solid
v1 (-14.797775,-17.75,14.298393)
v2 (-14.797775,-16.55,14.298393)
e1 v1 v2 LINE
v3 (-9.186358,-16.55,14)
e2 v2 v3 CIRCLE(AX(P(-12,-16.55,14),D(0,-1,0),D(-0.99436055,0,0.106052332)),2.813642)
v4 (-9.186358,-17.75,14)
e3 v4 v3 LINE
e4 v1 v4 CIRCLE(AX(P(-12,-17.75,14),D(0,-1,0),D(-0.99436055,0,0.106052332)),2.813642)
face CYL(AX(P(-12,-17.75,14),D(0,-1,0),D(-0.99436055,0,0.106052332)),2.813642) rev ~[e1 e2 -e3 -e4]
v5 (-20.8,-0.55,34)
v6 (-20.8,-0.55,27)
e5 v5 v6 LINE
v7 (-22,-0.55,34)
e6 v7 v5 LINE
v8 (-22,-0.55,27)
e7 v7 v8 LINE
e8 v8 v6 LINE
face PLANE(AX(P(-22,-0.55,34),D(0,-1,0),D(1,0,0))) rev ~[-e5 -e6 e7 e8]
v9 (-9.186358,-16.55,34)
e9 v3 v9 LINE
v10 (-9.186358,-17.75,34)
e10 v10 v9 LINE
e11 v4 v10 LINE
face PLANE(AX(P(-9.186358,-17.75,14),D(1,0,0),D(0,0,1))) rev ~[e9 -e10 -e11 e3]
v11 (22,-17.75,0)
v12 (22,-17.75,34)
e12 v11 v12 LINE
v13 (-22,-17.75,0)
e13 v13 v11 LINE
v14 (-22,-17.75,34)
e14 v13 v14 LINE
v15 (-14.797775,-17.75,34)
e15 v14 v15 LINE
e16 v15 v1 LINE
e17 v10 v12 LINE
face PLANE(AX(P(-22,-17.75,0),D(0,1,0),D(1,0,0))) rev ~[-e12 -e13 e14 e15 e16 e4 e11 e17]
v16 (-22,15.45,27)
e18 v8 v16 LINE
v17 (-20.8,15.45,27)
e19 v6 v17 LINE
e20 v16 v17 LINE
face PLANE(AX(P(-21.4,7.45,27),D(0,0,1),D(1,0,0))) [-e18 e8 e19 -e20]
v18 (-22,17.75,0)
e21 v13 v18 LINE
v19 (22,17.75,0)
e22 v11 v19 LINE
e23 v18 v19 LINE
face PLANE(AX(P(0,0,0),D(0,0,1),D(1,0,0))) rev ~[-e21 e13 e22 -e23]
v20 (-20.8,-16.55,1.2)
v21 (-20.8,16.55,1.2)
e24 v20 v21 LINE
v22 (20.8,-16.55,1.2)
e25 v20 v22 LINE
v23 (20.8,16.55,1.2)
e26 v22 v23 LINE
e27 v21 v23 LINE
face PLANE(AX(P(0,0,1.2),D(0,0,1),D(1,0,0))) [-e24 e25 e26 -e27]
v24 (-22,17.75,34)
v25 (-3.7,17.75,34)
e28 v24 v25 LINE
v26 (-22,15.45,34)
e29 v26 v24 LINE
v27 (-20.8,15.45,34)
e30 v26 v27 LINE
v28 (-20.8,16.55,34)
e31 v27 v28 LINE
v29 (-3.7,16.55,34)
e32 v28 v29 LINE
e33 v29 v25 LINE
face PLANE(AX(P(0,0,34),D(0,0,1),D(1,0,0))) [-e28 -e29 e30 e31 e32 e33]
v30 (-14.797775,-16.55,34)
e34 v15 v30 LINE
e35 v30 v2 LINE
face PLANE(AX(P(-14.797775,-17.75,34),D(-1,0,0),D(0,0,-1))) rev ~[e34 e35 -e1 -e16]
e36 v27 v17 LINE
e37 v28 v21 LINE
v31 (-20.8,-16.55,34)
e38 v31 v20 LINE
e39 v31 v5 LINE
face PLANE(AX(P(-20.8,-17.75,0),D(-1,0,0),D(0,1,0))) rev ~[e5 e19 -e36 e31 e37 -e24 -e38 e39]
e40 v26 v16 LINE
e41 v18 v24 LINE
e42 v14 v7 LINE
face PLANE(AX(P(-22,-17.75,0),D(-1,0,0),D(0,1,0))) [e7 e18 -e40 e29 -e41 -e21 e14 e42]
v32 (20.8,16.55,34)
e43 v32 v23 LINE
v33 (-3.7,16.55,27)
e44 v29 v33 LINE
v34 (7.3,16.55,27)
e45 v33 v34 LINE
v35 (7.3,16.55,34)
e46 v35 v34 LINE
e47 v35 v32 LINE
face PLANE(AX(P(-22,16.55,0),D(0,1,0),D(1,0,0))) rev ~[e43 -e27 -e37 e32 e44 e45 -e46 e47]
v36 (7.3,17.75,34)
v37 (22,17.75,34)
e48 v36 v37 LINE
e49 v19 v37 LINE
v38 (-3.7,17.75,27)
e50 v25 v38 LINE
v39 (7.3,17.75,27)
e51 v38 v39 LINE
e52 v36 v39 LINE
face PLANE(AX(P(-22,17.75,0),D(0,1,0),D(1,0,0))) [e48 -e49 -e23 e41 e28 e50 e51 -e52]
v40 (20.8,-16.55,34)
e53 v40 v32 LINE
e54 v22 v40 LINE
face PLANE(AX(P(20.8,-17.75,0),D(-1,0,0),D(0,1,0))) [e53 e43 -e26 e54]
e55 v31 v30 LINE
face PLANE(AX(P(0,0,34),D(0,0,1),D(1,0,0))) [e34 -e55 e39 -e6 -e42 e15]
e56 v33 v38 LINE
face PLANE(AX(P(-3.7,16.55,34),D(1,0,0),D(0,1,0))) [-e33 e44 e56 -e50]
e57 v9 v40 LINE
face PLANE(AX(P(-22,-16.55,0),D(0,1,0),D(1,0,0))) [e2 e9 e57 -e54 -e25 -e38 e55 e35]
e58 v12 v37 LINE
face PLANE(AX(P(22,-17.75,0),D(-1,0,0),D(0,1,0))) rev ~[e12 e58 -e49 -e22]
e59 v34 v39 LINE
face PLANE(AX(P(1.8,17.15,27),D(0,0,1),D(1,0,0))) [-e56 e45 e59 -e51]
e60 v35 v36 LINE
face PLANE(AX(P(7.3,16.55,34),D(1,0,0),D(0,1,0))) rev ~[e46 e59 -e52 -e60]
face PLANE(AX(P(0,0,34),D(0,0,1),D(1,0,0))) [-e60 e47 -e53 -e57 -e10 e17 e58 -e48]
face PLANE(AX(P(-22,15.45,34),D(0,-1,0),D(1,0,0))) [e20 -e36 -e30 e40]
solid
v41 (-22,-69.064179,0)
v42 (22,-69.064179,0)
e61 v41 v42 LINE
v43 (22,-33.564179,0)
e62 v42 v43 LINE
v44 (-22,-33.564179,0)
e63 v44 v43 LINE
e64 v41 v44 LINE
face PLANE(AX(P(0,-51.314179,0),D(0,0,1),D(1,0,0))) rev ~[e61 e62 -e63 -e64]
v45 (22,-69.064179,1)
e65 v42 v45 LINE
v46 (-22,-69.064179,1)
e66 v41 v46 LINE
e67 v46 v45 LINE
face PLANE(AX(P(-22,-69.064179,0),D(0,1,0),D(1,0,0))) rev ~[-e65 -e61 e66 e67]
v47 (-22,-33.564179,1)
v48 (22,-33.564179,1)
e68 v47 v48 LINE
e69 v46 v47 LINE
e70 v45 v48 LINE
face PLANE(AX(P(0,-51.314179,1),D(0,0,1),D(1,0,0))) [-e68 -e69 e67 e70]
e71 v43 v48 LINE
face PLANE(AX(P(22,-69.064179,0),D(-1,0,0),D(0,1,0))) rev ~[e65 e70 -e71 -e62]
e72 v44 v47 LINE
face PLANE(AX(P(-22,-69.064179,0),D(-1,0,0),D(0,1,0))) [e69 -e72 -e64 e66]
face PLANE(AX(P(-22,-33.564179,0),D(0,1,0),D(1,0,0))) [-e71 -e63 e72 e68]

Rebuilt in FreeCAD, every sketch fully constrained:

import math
import FreeCAD as App
import Part
import Sketcher
from FreeCAD import Vector


def faces_at(feature, points):
    """Names of the faces that lie closest to the given points."""
    faces = feature.Shape.Faces
    near = lambda p: min(range(len(faces)), key=lambda i: faces[i].distToShape(Part.Vertex(*p))[0])
    return sorted({f"Face{near(p) + 1}" for p in points})

doc = App.newDocument("Part")
body = doc.addObject("PartDesign::Body", "Body")

# Sketch on XY plane
sketch1 = body.newObject("Sketcher::SketchObject", "Sketch")
sketch1.AttachmentSupport = (doc.getObject("XY_Plane"), [""])
sketch1.MapMode = "FlatFace"
sketch1.addGeometry([
    Part.LineSegment(Vector(-22, 18, 0), Vector(-22, -18, 0)),
    Part.LineSegment(Vector(-22, -18, 0), Vector(22, -18, 0)),
    Part.LineSegment(Vector(22, -18, 0), Vector(22, 18, 0)),
    Part.LineSegment(Vector(22, 18, 0), Vector(-22, 18, 0)),
], False)
sketch1.addConstraint([
    Sketcher.Constraint("Coincident", 0, 2, 1, 1),
    Sketcher.Constraint("Coincident", 1, 2, 2, 1),
    Sketcher.Constraint("Coincident", 2, 2, 3, 1),
    Sketcher.Constraint("Coincident", 3, 2, 0, 1),
    Sketcher.Constraint("Vertical", 0),
    Sketcher.Constraint("Horizontal", 1),
    Sketcher.Constraint("Vertical", 2),
    Sketcher.Constraint("Horizontal", 3),
    Sketcher.Constraint("Symmetric", 0, 2, 2, 2, -1, 1),
    Sketcher.Constraint("DistanceX", 1, 1, 1, 2, 44.0),
    Sketcher.Constraint("DistanceY", 0, 2, 0, 1, 35.5),
])
pad1 = body.newObject("PartDesign::Pad", "Pad")
pad1.Profile = sketch1
pad1.Length = 34
doc.recompute()

thickness = body.newObject("PartDesign::Thickness", "Thickness")
thickness.Base = (pad1, faces_at(pad1, [(0, 0, 34)]))
thickness.Value = 1.2
thickness.Reversed = True
thickness.Join = "Arc"

# Sketch on XZ plane
sketch2 = body.newObject("Sketcher::SketchObject", "Sketch001")
sketch2.AttachmentSupport = (doc.getObject("XZ_Plane"), [""])
sketch2.MapMode = "FlatFace"
sketch2.AttachmentOffset = App.Placement(Vector(0, 0, 17.75), App.Rotation())
sketch2.addGeometry([
    Part.ArcOfCircle(Part.Circle(Vector(-12, 14, 0), Vector(0, 0, 1), 2.8), math.radians(174), math.radians(360)),
    Part.LineSegment(Vector(-9.2, 14, 0), Vector(-9.2, 34, 0)),
    Part.LineSegment(Vector(-9.2, 34, 0), Vector(-14.8, 34, 0)),
    Part.LineSegment(Vector(-14.8, 34, 0), Vector(-14.8, 14.3, 0)),
], False)
sketch2.addConstraint([
    Sketcher.Constraint("Tangent", 0, 2, 1, 1),
    Sketcher.Constraint("Coincident", 1, 2, 2, 1),
    Sketcher.Constraint("Coincident", 2, 2, 3, 1),
    Sketcher.Constraint("Coincident", 3, 2, 0, 1),
    Sketcher.Constraint("Vertical", 1),
    Sketcher.Constraint("Horizontal", 2),
    Sketcher.Constraint("Vertical", 3),
    Sketcher.Constraint("DistanceY", 1, 1, 1, 2, 20.0),
    Sketcher.Constraint("DistanceX", 0, 3, -1, 1, 12.0),
    Sketcher.Constraint("DistanceY", -1, 1, 0, 3, 14.0),
    Sketcher.Constraint("Radius", 0, 2.813642),
    Sketcher.Constraint("DistanceX", 2, 2, 2, 1, 5.611417),
])
pocket1 = body.newObject("PartDesign::Pocket", "Pocket")
pocket1.Profile = sketch2
pocket1.Length = 1.2

# Sketch on XY plane
sketch3 = body.newObject("Sketcher::SketchObject", "Sketch002")
sketch3.AttachmentSupport = (doc.getObject("XY_Plane"), [""])
sketch3.MapMode = "FlatFace"
sketch3.AttachmentOffset = App.Placement(Vector(0, 0, 34), App.Rotation())
sketch3.addGeometry([
    Part.LineSegment(Vector(-3.7, 17.8, 0), Vector(-3.7, 16.6, 0)),  # 0
    Part.LineSegment(Vector(-3.7, 16.6, 0), Vector(7.3, 16.6, 0)),  # 1
    Part.LineSegment(Vector(7.3, 16.6, 0), Vector(7.3, 17.8, 0)),  # 2
    Part.LineSegment(Vector(7.3, 17.8, 0), Vector(-3.7, 17.8, 0)),  # 3
    Part.LineSegment(Vector(-22, 15.4, 0), Vector(-22, -0.6, 0)),  # 4
    Part.LineSegment(Vector(-22, -0.6, 0), Vector(-20.8, -0.6, 0)),  # 5
    Part.LineSegment(Vector(-20.8, -0.6, 0), Vector(-20.8, 15.4, 0)),  # 6
    Part.LineSegment(Vector(-20.8, 15.4, 0), Vector(-22, 15.4, 0)),  # 7
], False)
sketch3.addConstraint([
    Sketcher.Constraint("Coincident", 0, 2, 1, 1),
    Sketcher.Constraint("Coincident", 1, 2, 2, 1),
    Sketcher.Constraint("Coincident", 2, 2, 3, 1),
    Sketcher.Constraint("Coincident", 3, 2, 0, 1),
    Sketcher.Constraint("Coincident", 4, 2, 5, 1),
    Sketcher.Constraint("Coincident", 5, 2, 6, 1),
    Sketcher.Constraint("Coincident", 6, 2, 7, 1),
    Sketcher.Constraint("Coincident", 7, 2, 4, 1),
    Sketcher.Constraint("Vertical", 0),
    Sketcher.Constraint("Horizontal", 1),
    Sketcher.Constraint("Vertical", 2),
    Sketcher.Constraint("Horizontal", 3),
    Sketcher.Constraint("Vertical", 4),
    Sketcher.Constraint("Horizontal", 5),
    Sketcher.Constraint("Vertical", 6),
    Sketcher.Constraint("Horizontal", 7),
    Sketcher.Constraint("Equal", 7, 0),
    Sketcher.Constraint("DistanceX", 1, 1, 1, 2, 11.0),
    Sketcher.Constraint("DistanceY", 4, 2, 4, 1, 16.0),
    Sketcher.Constraint("DistanceX", 5, 1, 5, 2, 1.2),
    Sketcher.Constraint("DistanceX", 4, 2, -1, 1, 22.0),
    Sketcher.Constraint("DistanceX", 0, 2, -1, 1, 3.7),
    Sketcher.Constraint("DistanceY", 4, 2, 0, 2, 17.1),
    Sketcher.Constraint("DistanceY", -1, 1, 0, 2, 16.55),
])
pocket2 = body.newObject("PartDesign::Pocket", "Pocket001")
pocket2.Profile = sketch3
pocket2.Length = 7
body2 = doc.addObject("PartDesign::Body", "Body001")

# Sketch on XY plane
sketch4 = body2.newObject("Sketcher::SketchObject", "Sketch003")
sketch4.AttachmentSupport = (doc.getObject("XY_Plane001"), [""])
sketch4.MapMode = "FlatFace"
sketch4.addGeometry([
    Part.LineSegment(Vector(-22, -34, 0), Vector(-22, -69, 0)),
    Part.LineSegment(Vector(-22, -69, 0), Vector(22, -69, 0)),
    Part.LineSegment(Vector(22, -69, 0), Vector(22, -34, 0)),
    Part.LineSegment(Vector(22, -34, 0), Vector(-22, -34, 0)),
], False)
sketch4.addConstraint([
    Sketcher.Constraint("Coincident", 0, 2, 1, 1),
    Sketcher.Constraint("Coincident", 1, 2, 2, 1),
    Sketcher.Constraint("Coincident", 2, 2, 3, 1),
    Sketcher.Constraint("Coincident", 3, 2, 0, 1),
    Sketcher.Constraint("Vertical", 0),
    Sketcher.Constraint("Horizontal", 1),
    Sketcher.Constraint("Vertical", 2),
    Sketcher.Constraint("Horizontal", 3),
    Sketcher.Constraint("DistanceX", 1, 1, 1, 2, 44.0),
    Sketcher.Constraint("DistanceY", 0, 2, 0, 1, 35.5),
    Sketcher.Constraint("DistanceX", 0, 2, -1, 1, 22.0),
    Sketcher.Constraint("DistanceY", 0, 2, -1, 1, 69.064179),
])
pad2 = body2.newObject("PartDesign::Pad", "Pad001")
pad2.Profile = sketch4
pad2.Length = 1

doc.recompute()
